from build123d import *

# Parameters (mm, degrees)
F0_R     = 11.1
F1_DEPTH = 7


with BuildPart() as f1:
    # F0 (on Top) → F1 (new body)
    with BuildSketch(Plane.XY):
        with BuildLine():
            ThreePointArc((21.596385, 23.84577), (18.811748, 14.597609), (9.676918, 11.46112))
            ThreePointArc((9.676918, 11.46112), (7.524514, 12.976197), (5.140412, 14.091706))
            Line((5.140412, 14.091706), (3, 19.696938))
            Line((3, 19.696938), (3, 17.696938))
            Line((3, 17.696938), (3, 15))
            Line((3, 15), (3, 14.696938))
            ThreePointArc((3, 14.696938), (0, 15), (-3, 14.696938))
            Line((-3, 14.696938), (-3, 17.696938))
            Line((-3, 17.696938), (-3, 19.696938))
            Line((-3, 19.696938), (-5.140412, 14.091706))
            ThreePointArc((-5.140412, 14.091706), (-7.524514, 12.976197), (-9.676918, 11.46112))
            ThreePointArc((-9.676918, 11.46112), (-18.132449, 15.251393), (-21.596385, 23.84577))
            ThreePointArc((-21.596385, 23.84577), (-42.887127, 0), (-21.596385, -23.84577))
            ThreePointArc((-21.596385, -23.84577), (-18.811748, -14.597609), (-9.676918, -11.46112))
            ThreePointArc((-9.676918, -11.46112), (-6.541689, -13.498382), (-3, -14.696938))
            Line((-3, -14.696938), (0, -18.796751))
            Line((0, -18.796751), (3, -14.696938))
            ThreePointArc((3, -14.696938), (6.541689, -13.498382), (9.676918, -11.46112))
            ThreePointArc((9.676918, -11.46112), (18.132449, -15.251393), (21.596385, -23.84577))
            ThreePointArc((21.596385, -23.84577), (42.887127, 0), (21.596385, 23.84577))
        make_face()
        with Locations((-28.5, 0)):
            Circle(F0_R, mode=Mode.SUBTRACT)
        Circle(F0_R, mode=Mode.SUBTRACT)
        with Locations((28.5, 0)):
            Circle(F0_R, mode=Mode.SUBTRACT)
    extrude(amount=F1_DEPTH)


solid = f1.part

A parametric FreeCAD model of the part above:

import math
import FreeCAD as App
import Part
import Sketcher
from FreeCAD import Vector

doc = App.newDocument("Part")
params = doc.addObject("Spreadsheet::Sheet", "Params")
for row, (alias, value) in enumerate([
    ("sketch1_diameter", "22.2 mm"),
    ("sketch1_height", "5 mm"),
    ("sketch1_length", "5.999999 mm"),
    ("pad1_length", "7 mm"),
], start=1):
    params.set(f"A{row}", alias)
    params.set(f"B{row}", "=" + value)
    params.setAlias(f"B{row}", alias)

body = doc.addObject("PartDesign::Body", "Body")

# Sketch on XY plane
sketch1 = body.newObject("Sketcher::SketchObject", "Sketch")
sketch1.AttachmentSupport = (doc.getObject("XY_Plane"), [""])
sketch1.MapMode = "FlatFace"
sketch1.addGeometry([
    Part.ArcOfCircle(Part.Circle(Vector(11.185818, 21.937099, 0), Vector(0, 0, 1), 10.584088), math.radians(-98.196188), math.radians(10.389213)),  # 0
    Part.ArcOfCircle(Part.Circle(Vector(-0.000015, -0.000026, 0), Vector(0, 0, 1), 15.00003), math.radians(49.824759), math.radians(69.95888)),  # 1
    Part.LineSegment(Vector(5.140412, 14.091706, 0), Vector(3, 19.696938, 0)),  # 2
    Part.LineSegment(Vector(3, 19.696938, 0), Vector(3, 14.696938, 0)),  # 3
    Part.ArcOfCircle(Part.Circle(Vector(0, 0.000022, 0), Vector(0, 0, 1), 14.999978), math.radians(78.463024), math.radians(101.536976)),  # 4
    Part.LineSegment(Vector(-3, 14.696938, 0), Vector(-3, 19.696938, 0)),  # 5
    Part.LineSegment(Vector(-3, 19.696938, 0), Vector(-5.140412, 14.091706, 0)),  # 6
    Part.ArcOfCircle(Part.Circle(Vector(0.000015, -0.000026, 0), Vector(0, 0, 1), 15.00003), math.radians(110.04112), math.radians(130.175241)),  # 7
    Part.ArcOfCircle(Part.Circle(Vector(-9.202659, 23.845769, 0), Vector(0, 0, 1), 12.393726), math.radians(179.999995), math.radians(267.80698)),  # 8
    Part.ArcOfCircle(Part.Circle(Vector(-18.888047, 0, 0), Vector(0, 0, 1), 23.99908), math.radians(96.479732), math.radians(263.520268)),  # 9
    Part.ArcOfCircle(Part.Circle(Vector(-11.185818, -21.937099, 0), Vector(0, 0, 1), 10.584088), math.radians(81.803812), math.radians(190.389213)),  # 10
    Part.ArcOfCircle(Part.Circle(Vector(-0.000007, -0.00001, 0), Vector(0, 0, 1), 14.999988), math.radians(-130.175267), math.radians(-101.536941)),  # 11
    Part.LineSegment(Vector(-3, -14.696938, 0), Vector(0, -18.796751, 0)),  # 12
    Part.LineSegment(Vector(0, -18.796751, 0), Vector(3, -14.696938, 0)),  # 13
    Part.ArcOfCircle(Part.Circle(Vector(0.000007, -0.00001, 0), Vector(0, 0, 1), 14.999988), math.radians(-78.463059), math.radians(-49.824733)),  # 14
    Part.ArcOfCircle(Part.Circle(Vector(9.202659, -23.845769, 0), Vector(0, 0, 1), 12.393726), math.radians(-0.000005), math.radians(87.80698)),  # 15
    Part.ArcOfCircle(Part.Circle(Vector(18.888047, 0, 0), Vector(0, 0, 1), 23.99908), math.radians(-83.520268), math.radians(83.520268)),  # 16
    Part.Circle(Vector(-28.5, 0, 0), Vector(0, 0, 1), 11.1),  # 17
    Part.Circle(Vector(0, 0, 0), Vector(0, 0, 1), 11.1),  # 18
    Part.Circle(Vector(28.5, 0, 0), Vector(0, 0, 1), 11.1),  # 19
], False)
sketch1.addConstraint([
    Sketcher.Constraint("Coincident", 0, 1, 1, 1),
    Sketcher.Constraint("Coincident", 1, 2, 2, 1),
    Sketcher.Constraint("Coincident", 2, 2, 3, 1),
    Sketcher.Constraint("Coincident", 3, 2, 4, 1),
    Sketcher.Constraint("Coincident", 4, 2, 5, 1),
    Sketcher.Constraint("Coincident", 5, 2, 6, 1),
    Sketcher.Constraint("Coincident", 6, 2, 7, 1),
    Sketcher.Constraint("Coincident", 7, 2, 8, 2),
    Sketcher.Constraint("Coincident", 8, 1, 9, 1),
    Sketcher.Constraint("Coincident", 9, 2, 10, 2),
    Sketcher.Constraint("Coincident", 10, 1, 11, 1),
    Sketcher.Constraint("Coincident", 11, 2, 12, 1),
    Sketcher.Constraint("Coincident", 12, 2, 13, 1),
    Sketcher.Constraint("Coincident", 13, 2, 14, 1),
    Sketcher.Constraint("Coincident", 14, 2, 15, 2),
    Sketcher.Constraint("Coincident", 15, 1, 16, 1),
    Sketcher.Constraint("Coincident", 16, 2, 0, 2),
    Sketcher.Constraint("Vertical", 3),
    Sketcher.Constraint("Vertical", 5),
    Sketcher.Constraint("Coincident", 18, 3, -1, 1),
    Sketcher.Constraint("Equal", 1, 7),
    Sketcher.Constraint("Equal", 0, 10),
    Sketcher.Constraint("Equal", 11, 14),
    Sketcher.Constraint("Equal", 8, 15),
    Sketcher.Constraint("Equal", 9, 16),
    Sketcher.Constraint("Equal", 17, 18),
    Sketcher.Constraint("Equal", 18, 19),
    Sketcher.Constraint("Symmetric", 0, 3, 10, 3, -1, 1),
    Sketcher.Constraint("Symmetric", 8, 3, 15, 3, -1, 1),
    Sketcher.Constraint("Symmetric", 9, 3, 16, 3, -1, 1),
    Sketcher.Constraint("Symmetric", 17, 3, 19, 3, -1, 1),
    Sketcher.Constraint("Symmetric", 3, 2, 11, 2, -1, 1),
    Sketcher.Constraint("Symmetric", 4, 2, 13, 2, -1, 1),
    Sketcher.Constraint("Symmetric", 1, 3, 7, 3, -2),
    Sketcher.Constraint("Symmetric", 11, 3, 14, 3, -2),
    Sketcher.Constraint("Symmetric", 2, 2, 5, 2, -2),
    Sketcher.Constraint("Symmetric", 9, 2, 15, 1, -2),
    Sketcher.Constraint("Symmetric", 7, 2, 10, 1, -1),
    Sketcher.Constraint("PointOnObject", 17, 3, -1),
    Sketcher.Constraint("PointOnObject", 12, 2, -2),
    Sketcher.Constraint("Horizontal", 1, 2, 6, 2),
    Sketcher.Constraint("Horizontal", 15, 3, 9, 2),
    Sketcher.Constraint("Diameter", 17, 22.2),
    Sketcher.Constraint("DistanceY", 3, 2, 3, 1, 5.0),
    Sketcher.Constraint("Distance", 2, 5.999999),
    Sketcher.Constraint("DistanceX", -1, 1, 2, 2, 3.0),
    Sketcher.Constraint("DistanceX", 17, 3, -1, 1, 28.5),
    Sketcher.Constraint("Radius", 0, 10.584088),
    Sketcher.Constraint("Radius", 1, 15.00003),
    Sketcher.Constraint("Radius", 9, 23.99908),
    Sketcher.Constraint("Radius", 11, 14.999988),
    Sketcher.Constraint("Radius", 4, 14.999978),
    Sketcher.Constraint("Radius", 8, 12.393726),
    Sketcher.Constraint("DistanceY", -1, 1, 0, 3, 21.937099),
    Sketcher.Constraint("DistanceX", 0, 1, 0, 3, 1.5089),
    Sketcher.Constraint("DistanceX", -1, 1, 0, 3, 11.185818),
    Sketcher.Constraint("DistanceY", 12, 2, -1, 1, 18.796751),
    Sketcher.Constraint("DistanceX", 9, 3, 1, 3, 18.888032),
    Sketcher.Constraint("DistanceY", 10, 3, 4, 3, 21.937122),
])
sketch1.setExpression("Constraints[42]", "Params.sketch1_diameter")
sketch1.setExpression("Constraints[43]", "Params.sketch1_height")
sketch1.setExpression("Constraints[44]", "Params.sketch1_length")
pad1 = body.newObject("PartDesign::Pad", "Pad")
pad1.Profile = sketch1
pad1.setExpression("Length", "Params.pad1_length")

doc.recompute()
